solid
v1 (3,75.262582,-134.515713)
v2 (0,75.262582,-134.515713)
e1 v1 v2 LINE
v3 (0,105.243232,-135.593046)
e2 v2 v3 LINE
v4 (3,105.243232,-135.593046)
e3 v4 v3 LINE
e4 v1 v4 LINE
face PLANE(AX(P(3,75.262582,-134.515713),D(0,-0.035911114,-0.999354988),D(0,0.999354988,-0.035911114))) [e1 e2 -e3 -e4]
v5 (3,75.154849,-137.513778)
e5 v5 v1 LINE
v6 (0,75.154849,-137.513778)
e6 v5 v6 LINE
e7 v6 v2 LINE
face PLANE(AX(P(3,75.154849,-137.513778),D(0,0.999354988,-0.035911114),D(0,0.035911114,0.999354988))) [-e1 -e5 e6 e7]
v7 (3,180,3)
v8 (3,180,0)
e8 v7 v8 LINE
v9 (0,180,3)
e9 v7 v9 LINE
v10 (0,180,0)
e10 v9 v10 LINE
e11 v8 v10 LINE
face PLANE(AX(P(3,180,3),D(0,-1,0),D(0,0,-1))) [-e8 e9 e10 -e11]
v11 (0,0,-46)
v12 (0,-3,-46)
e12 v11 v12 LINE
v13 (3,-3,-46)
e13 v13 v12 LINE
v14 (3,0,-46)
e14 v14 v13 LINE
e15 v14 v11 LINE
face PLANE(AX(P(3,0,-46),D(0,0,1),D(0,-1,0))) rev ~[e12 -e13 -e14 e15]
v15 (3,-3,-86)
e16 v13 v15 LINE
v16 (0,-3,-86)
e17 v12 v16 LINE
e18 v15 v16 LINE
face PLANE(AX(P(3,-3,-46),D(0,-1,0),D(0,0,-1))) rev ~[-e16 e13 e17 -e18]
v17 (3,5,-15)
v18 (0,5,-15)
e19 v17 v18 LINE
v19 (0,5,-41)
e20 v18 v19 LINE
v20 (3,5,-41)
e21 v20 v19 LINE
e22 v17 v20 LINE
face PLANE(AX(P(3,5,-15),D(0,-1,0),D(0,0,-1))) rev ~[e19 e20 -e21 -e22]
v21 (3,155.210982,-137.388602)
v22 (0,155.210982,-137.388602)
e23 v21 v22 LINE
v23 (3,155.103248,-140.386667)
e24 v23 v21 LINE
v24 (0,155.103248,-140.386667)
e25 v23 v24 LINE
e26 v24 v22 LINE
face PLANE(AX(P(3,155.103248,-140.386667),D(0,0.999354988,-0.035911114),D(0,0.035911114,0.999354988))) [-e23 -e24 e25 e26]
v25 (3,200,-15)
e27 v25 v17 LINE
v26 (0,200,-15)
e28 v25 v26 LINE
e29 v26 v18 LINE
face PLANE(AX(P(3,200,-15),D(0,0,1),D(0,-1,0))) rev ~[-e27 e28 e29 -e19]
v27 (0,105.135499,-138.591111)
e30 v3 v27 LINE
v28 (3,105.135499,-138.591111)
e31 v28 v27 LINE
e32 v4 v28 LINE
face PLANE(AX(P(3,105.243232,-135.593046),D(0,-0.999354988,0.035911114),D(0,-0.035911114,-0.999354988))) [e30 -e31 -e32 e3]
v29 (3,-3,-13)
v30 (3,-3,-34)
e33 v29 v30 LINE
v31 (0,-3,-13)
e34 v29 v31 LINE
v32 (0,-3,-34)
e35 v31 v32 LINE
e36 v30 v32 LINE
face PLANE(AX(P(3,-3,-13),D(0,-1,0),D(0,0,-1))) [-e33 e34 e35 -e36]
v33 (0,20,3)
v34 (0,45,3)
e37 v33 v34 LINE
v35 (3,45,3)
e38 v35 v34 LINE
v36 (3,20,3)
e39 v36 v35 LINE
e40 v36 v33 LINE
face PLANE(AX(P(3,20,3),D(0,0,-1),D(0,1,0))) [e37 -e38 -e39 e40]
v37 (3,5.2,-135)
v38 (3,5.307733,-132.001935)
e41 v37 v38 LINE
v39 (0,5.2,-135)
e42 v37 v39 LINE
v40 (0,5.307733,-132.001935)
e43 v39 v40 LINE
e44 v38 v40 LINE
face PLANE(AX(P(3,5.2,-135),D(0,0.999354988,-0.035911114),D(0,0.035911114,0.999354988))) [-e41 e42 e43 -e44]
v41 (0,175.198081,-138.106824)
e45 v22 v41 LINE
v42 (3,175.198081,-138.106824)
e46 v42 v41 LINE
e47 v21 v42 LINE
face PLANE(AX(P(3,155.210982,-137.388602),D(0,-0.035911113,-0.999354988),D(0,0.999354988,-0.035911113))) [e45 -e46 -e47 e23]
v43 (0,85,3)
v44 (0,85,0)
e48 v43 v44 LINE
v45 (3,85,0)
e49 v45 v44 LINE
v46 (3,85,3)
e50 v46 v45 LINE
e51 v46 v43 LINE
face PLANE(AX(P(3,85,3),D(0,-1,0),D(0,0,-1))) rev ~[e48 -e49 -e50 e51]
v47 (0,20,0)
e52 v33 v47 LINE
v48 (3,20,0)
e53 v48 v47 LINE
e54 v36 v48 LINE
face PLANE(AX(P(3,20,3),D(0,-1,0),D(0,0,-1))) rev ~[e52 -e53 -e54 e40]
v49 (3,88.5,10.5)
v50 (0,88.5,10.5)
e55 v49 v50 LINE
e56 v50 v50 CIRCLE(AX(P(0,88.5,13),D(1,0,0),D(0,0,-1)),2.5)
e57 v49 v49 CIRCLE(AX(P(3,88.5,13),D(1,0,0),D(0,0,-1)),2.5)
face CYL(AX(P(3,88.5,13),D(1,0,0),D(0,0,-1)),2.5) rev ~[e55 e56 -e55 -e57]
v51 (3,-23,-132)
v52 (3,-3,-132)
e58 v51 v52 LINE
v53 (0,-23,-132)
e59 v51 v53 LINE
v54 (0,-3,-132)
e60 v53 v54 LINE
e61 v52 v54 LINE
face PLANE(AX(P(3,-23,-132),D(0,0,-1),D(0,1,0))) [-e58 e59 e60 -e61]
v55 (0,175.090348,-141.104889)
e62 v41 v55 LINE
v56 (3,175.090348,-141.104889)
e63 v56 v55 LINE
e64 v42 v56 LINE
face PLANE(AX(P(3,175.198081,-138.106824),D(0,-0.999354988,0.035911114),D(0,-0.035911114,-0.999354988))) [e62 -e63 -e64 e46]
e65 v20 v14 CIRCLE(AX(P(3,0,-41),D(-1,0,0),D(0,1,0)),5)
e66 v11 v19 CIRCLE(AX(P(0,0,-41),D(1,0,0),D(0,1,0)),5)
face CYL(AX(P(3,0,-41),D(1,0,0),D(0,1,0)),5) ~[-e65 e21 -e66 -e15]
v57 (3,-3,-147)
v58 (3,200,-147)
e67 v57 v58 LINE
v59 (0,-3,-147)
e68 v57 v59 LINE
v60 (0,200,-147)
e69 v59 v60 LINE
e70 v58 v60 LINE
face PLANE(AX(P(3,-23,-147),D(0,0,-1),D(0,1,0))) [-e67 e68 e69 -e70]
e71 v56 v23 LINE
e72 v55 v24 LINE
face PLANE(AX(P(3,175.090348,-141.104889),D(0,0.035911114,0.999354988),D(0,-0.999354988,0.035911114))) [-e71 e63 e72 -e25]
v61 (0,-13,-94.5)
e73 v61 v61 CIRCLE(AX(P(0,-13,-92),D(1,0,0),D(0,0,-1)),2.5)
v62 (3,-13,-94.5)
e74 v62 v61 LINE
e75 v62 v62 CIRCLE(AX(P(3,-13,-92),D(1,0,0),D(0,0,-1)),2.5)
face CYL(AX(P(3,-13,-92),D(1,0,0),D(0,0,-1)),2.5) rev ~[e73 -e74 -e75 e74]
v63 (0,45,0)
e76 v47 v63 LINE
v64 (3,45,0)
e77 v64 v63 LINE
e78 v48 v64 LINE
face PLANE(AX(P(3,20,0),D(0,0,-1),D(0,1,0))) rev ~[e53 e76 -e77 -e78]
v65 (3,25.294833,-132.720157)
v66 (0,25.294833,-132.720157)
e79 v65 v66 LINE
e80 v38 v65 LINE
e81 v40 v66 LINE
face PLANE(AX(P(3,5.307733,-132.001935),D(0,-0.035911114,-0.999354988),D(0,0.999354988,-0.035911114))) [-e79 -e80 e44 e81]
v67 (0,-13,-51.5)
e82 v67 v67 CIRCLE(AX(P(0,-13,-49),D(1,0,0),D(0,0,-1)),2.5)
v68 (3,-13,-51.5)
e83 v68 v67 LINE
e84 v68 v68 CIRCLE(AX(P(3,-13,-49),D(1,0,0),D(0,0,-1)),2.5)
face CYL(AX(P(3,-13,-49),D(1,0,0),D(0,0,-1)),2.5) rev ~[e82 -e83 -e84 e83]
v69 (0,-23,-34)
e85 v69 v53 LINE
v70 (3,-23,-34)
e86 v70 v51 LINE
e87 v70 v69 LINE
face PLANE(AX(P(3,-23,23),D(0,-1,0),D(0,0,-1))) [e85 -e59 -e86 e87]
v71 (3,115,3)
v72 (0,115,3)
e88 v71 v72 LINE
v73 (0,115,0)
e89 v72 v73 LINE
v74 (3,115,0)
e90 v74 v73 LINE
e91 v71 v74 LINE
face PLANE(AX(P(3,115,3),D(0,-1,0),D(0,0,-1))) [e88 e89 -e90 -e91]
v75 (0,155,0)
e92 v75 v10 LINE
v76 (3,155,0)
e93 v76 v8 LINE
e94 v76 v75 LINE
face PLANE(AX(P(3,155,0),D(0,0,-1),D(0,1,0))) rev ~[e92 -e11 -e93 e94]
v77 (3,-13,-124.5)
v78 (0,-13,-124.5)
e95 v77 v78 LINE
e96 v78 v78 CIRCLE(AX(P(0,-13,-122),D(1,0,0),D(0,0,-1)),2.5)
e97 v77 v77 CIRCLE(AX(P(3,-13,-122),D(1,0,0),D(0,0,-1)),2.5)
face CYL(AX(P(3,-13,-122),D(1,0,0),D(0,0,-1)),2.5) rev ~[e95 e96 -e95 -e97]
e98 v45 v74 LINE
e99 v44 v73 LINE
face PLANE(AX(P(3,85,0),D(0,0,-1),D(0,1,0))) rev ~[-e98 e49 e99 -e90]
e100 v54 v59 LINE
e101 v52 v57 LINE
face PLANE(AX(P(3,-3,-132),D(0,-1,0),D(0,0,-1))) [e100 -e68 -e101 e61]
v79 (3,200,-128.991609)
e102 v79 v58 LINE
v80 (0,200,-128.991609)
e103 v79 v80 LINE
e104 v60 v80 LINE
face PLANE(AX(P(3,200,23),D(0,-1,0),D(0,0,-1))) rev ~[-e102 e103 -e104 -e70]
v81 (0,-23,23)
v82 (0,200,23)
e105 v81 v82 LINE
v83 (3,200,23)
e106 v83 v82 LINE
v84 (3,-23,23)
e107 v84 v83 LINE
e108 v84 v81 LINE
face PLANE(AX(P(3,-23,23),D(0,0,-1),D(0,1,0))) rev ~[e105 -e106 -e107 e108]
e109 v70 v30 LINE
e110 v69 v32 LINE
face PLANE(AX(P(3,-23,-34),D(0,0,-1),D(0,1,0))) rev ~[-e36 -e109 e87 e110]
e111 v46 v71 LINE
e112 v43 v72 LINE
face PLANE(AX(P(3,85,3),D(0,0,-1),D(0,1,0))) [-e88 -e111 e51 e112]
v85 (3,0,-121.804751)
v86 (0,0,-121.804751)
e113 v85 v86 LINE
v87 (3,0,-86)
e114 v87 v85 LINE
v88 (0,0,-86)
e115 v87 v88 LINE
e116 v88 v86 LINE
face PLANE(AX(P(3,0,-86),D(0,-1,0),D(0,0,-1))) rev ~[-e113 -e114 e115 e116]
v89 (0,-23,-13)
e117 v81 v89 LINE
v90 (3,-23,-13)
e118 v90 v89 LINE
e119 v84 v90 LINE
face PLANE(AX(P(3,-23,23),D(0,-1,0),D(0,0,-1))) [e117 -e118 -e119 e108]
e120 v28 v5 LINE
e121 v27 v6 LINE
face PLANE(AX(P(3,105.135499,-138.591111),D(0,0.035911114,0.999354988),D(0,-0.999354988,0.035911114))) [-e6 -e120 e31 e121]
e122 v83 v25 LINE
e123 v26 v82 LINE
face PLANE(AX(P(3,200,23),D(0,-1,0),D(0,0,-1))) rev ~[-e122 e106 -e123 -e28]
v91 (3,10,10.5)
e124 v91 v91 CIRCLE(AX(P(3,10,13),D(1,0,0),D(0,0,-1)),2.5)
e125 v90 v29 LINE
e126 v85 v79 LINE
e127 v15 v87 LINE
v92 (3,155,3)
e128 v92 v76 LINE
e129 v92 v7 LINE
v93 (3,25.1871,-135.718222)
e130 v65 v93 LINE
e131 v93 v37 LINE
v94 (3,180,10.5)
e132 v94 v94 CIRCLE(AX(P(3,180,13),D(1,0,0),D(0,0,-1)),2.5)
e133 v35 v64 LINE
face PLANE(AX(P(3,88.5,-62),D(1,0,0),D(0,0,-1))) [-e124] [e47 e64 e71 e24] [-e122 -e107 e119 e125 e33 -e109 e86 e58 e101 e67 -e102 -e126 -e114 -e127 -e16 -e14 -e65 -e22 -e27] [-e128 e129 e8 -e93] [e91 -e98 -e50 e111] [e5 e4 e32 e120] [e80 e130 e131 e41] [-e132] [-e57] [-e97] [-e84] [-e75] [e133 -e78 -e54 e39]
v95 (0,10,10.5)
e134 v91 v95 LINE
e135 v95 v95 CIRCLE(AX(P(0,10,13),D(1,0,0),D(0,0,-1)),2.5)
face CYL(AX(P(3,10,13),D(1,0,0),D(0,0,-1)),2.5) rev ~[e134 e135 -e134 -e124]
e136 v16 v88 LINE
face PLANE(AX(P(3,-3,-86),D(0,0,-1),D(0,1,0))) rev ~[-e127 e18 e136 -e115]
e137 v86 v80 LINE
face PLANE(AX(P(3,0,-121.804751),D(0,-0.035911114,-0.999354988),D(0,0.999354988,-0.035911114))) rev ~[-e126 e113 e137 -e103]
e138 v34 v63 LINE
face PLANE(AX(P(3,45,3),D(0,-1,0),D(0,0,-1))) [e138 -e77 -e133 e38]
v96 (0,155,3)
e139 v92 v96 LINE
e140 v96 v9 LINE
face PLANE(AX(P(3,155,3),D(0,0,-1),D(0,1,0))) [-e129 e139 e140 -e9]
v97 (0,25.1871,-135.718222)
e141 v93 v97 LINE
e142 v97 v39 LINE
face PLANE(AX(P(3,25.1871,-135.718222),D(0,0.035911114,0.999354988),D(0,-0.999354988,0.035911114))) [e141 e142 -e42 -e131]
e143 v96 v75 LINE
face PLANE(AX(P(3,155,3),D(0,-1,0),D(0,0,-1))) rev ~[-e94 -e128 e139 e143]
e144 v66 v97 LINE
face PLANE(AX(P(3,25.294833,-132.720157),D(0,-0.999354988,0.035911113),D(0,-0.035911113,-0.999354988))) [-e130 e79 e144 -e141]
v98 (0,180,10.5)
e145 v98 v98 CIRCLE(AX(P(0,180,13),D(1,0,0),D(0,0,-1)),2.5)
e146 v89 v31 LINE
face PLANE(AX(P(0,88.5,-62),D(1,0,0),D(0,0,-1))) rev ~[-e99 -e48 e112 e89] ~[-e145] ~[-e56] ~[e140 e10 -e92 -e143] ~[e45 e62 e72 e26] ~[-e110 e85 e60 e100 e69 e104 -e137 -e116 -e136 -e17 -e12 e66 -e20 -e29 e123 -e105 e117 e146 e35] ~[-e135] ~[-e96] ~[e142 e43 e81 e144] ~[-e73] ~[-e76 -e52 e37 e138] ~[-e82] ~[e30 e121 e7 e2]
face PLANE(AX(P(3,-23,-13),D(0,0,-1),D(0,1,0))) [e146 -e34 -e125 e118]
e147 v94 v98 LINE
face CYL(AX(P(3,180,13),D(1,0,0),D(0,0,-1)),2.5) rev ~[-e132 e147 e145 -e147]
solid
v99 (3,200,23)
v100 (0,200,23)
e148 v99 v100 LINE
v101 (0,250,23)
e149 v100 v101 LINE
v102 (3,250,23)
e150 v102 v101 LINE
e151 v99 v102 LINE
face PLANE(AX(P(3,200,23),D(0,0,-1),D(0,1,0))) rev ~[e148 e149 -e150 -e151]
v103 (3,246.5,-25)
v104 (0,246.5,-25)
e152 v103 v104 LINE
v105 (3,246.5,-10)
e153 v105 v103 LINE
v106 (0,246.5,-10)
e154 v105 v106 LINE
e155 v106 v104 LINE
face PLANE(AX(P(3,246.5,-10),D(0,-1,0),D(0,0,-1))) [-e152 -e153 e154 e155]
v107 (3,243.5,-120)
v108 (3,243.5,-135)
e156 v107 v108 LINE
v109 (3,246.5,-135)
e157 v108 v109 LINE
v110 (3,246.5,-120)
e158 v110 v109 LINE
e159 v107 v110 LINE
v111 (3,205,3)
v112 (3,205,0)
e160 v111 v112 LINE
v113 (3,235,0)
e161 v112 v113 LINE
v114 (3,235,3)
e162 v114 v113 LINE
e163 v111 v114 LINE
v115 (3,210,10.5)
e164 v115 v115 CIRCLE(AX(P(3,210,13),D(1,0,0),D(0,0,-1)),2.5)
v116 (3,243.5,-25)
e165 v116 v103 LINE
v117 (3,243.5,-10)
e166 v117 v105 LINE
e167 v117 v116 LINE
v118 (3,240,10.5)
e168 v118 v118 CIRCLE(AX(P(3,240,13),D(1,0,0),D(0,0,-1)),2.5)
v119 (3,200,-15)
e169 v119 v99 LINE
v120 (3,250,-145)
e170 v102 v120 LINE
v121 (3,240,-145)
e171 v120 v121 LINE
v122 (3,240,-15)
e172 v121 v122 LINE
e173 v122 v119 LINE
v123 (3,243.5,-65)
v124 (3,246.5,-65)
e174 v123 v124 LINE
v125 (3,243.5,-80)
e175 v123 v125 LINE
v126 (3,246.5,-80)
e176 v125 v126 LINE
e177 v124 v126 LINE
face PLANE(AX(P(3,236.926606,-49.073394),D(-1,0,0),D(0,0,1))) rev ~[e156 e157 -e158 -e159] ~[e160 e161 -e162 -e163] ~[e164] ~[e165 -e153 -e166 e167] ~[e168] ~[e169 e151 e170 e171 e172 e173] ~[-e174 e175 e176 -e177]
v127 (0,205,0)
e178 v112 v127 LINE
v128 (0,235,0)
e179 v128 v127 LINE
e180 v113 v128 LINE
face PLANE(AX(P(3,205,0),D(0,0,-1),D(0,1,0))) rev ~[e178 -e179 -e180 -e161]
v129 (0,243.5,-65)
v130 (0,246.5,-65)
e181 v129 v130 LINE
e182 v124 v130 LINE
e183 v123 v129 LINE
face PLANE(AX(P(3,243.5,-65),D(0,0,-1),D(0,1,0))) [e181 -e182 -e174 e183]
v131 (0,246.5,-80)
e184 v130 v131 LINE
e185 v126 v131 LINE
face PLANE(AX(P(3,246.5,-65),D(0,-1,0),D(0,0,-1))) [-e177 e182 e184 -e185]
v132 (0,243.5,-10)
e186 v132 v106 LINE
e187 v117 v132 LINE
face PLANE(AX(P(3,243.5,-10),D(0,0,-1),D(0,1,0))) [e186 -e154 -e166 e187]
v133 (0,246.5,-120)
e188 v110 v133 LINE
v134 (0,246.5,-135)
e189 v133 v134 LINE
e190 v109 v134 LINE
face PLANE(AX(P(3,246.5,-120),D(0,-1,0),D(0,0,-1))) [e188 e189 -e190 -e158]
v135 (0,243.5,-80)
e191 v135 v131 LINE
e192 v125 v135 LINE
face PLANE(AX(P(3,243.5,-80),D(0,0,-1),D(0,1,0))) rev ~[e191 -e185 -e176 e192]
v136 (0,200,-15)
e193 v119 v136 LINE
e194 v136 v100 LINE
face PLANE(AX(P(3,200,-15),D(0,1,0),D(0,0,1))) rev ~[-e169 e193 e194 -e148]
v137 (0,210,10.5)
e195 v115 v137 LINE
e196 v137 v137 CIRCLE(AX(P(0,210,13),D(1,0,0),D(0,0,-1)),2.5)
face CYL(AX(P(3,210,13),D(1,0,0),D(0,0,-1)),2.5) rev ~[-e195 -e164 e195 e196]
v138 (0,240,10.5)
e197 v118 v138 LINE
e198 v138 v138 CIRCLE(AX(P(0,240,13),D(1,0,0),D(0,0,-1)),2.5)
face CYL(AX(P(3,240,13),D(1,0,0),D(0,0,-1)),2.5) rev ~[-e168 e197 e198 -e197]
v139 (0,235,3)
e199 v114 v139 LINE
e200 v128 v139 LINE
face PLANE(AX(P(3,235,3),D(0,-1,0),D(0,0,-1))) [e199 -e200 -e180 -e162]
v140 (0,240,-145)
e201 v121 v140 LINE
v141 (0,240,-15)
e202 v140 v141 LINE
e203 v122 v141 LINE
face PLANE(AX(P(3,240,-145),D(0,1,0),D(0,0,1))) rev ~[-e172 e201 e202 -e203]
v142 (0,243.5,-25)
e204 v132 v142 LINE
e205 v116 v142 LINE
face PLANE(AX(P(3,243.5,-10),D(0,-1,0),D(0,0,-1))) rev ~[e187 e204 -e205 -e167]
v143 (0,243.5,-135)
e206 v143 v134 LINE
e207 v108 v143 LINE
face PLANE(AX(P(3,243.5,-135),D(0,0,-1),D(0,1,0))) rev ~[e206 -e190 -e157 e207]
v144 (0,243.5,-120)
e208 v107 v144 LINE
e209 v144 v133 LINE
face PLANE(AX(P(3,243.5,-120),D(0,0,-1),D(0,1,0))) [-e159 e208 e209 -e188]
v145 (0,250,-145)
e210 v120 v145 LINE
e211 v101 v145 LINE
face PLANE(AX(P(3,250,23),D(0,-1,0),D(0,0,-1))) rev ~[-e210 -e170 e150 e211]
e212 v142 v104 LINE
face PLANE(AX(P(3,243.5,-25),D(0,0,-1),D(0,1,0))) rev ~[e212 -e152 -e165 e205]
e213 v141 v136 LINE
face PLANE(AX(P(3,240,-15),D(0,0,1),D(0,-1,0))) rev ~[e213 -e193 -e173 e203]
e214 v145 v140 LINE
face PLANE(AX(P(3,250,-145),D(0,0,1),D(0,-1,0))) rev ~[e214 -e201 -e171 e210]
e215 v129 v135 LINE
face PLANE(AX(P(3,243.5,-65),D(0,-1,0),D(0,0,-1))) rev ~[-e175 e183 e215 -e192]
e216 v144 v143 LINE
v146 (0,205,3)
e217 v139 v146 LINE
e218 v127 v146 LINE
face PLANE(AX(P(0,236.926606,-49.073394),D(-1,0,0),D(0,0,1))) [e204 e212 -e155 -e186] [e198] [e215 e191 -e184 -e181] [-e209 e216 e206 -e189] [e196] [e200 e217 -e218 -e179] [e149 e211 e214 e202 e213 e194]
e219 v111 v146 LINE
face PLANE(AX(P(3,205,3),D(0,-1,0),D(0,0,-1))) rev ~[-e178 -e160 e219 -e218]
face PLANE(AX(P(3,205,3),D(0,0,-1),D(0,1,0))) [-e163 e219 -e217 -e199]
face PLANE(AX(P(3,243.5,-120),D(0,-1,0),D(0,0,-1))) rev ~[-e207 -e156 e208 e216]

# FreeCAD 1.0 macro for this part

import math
import FreeCAD as App
import Part
import Sketcher
from FreeCAD import Vector
Q = App.Units.Quantity

doc = App.newDocument("Part")
body = doc.addObject("PartDesign::Body", "Body")

# Sketch on YZ plane
sketch1 = body.newObject("Sketcher::SketchObject", "Sketch")
sketch1.AttachmentSupport = (doc.getObject("YZ_Plane"), [""])
sketch1.MapMode = "FlatFace"
sketch1.addGeometry(Part.LineSegment(Vector(200, 0, 0), Vector(0, 0, 0)), False)
sketch1.addGeometry(Part.LineSegment(Vector(0, 0, 0), Vector(0, -132, 0)), False)
sketch1.addGeometry(Part.LineSegment(Vector(0, -132, 0), Vector(200, -132, 0)), False)
sketch1.addGeometry(Part.LineSegment(Vector(200, -132, 0), Vector(200, 0, 0)), False)
sketch1.addConstraint(Sketcher.Constraint("Coincident", 0, 2, 1, 1))
sketch1.addConstraint(Sketcher.Constraint("Coincident", 1, 2, 2, 1))
sketch1.addConstraint(Sketcher.Constraint("Coincident", 2, 2, 3, 1))
sketch1.addConstraint(Sketcher.Constraint("Coincident", 3, 2, 0, 1))
sketch1.addConstraint(Sketcher.Constraint("Horizontal", 0))
sketch1.addConstraint(Sketcher.Constraint("Vertical", 1))
sketch1.addConstraint(Sketcher.Constraint("Horizontal", 2))
sketch1.addConstraint(Sketcher.Constraint("Vertical", 3))
sketch1.addConstraint(Sketcher.Constraint("Coincident", 0, 2, -1, 1))
sketch1.addConstraint(Sketcher.Constraint("DistanceX", 0, 2, 0, 1, Q("200 mm")))
sketch1.addConstraint(Sketcher.Constraint("DistanceY", 1, 2, 1, 1, Q("132 mm")))
pad1 = body.newObject("PartDesign::Pad", "Pad")
pad1.Profile = sketch1
pad1.Length = 3

# Sketch on YZ plane
sketch2 = body.newObject("Sketcher::SketchObject", "Sketch001")
sketch2.AttachmentSupport = (doc.getObject("YZ_Plane"), [""])
sketch2.MapMode = "FlatFace"
sketch2.AttachmentOffset = App.Placement(Vector(0, 0, 3), App.Rotation())
sketch2.addGeometry(Part.LineSegment(Vector(200, 23, 0), Vector(-23, 23, 0)), False)
sketch2.addGeometry(Part.LineSegment(Vector(-23, 23, 0), Vector(-23, -147, 0)), False)
sketch2.addGeometry(Part.LineSegment(Vector(-23, -147, 0), Vector(200, -147, 0)), False)
sketch2.addGeometry(Part.LineSegment(Vector(200, -147, 0), Vector(200, 23, 0)), False)
sketch2.addConstraint(Sketcher.Constraint("Coincident", 0, 2, 1, 1))
sketch2.addConstraint(Sketcher.Constraint("Coincident", 1, 2, 2, 1))
sketch2.addConstraint(Sketcher.Constraint("Coincident", 2, 2, 3, 1))
sketch2.addConstraint(Sketcher.Constraint("Coincident", 3, 2, 0, 1))
sketch2.addConstraint(Sketcher.Constraint("Horizontal", 0))
sketch2.addConstraint(Sketcher.Constraint("Vertical", 1))
sketch2.addConstraint(Sketcher.Constraint("Horizontal", 2))
sketch2.addConstraint(Sketcher.Constraint("Vertical", 3))
sketch2.addConstraint(Sketcher.Constraint("DistanceX", 0, 2, 0, 1, Q("223 mm")))
sketch2.addConstraint(Sketcher.Constraint("DistanceY", 1, 2, 1, 1, Q("170 mm")))
sketch2.addConstraint(Sketcher.Constraint("DistanceX", 0, 2, -1, 1, Q("23 mm")))
sketch2.addConstraint(Sketcher.Constraint("DistanceY", -1, 1, 0, 2, Q("23 mm")))
pad2 = body.newObject("PartDesign::Pad", "Pad001")
pad2.Profile = sketch2
pad2.Type = "UpToLast"
pad2.Reversed = True

# Sketch on YZ plane
sketch3 = body.newObject("Sketcher::SketchObject", "Sketch002")
sketch3.AttachmentSupport = (doc.getObject("YZ_Plane"), [""])
sketch3.MapMode = "FlatFace"
sketch3.AttachmentOffset = App.Placement(Vector(0, 0, 3), App.Rotation())
sketch3.addGeometry(Part.LineSegment(Vector(5.3, -132, 0), Vector(5.2, -135, 0)), False)
sketch3.addGeometry(Part.LineSegment(Vector(5.2, -135, 0), Vector(25.2, -135.7, 0)), False)
sketch3.addGeometry(Part.LineSegment(Vector(25.2, -135.7, 0), Vector(25.3, -132.7, 0)), False)
sketch3.addGeometry(Part.LineSegment(Vector(25.3, -132.7, 0), Vector(5.3, -132, 0)), False)
sketch3.addGeometry(Part.LineSegment(Vector(175.1, -141.1, 0), Vector(175.2, -138.1, 0)), False)
sketch3.addGeometry(Part.LineSegment(Vector(175.2, -138.1, 0), Vector(155.2, -137.4, 0)), False)
sketch3.addGeometry(Part.LineSegment(Vector(155.2, -137.4, 0), Vector(155.1, -140.4, 0)), False)
sketch3.addGeometry(Part.LineSegment(Vector(155.1, -140.4, 0), Vector(175.1, -141.1, 0)), False)
sketch3.addGeometry(Part.LineSegment(Vector(105.1, -138.6, 0), Vector(105.2, -135.6, 0)), False)
sketch3.addGeometry(Part.LineSegment(Vector(105.2, -135.6, 0), Vector(75.3, -134.5, 0)), False)
sketch3.addGeometry(Part.LineSegment(Vector(75.3, -134.5, 0), Vector(75.2, -137.5, 0)), False)
sketch3.addGeometry(Part.LineSegment(Vector(75.2, -137.5, 0), Vector(105.1, -138.6, 0)), False)
sketch3.addConstraint(Sketcher.Constraint("Coincident", 0, 2, 1, 1))
sketch3.addConstraint(Sketcher.Constraint("Coincident", 1, 2, 2, 1))
sketch3.addConstraint(Sketcher.Constraint("Coincident", 2, 2, 3, 1))
sketch3.addConstraint(Sketcher.Constraint("Coincident", 3, 2, 0, 1))
sketch3.addConstraint(Sketcher.Constraint("Coincident", 4, 2, 5, 1))
sketch3.addConstraint(Sketcher.Constraint("Coincident", 5, 2, 6, 1))
sketch3.addConstraint(Sketcher.Constraint("Coincident", 6, 2, 7, 1))
sketch3.addConstraint(Sketcher.Constraint("Coincident", 7, 2, 4, 1))
sketch3.addConstraint(Sketcher.Constraint("Coincident", 8, 2, 9, 1))
sketch3.addConstraint(Sketcher.Constraint("Coincident", 9, 2, 10, 1))
sketch3.addConstraint(Sketcher.Constraint("Coincident", 10, 2, 11, 1))
sketch3.addConstraint(Sketcher.Constraint("Coincident", 11, 2, 8, 1))
sketch3.addConstraint(Sketcher.Constraint("Perpendicular", 0, 1))
sketch3.addConstraint(Sketcher.Constraint("Perpendicular", 1, 2))
sketch3.addConstraint(Sketcher.Constraint("Perpendicular", 2, 3))
sketch3.addConstraint(Sketcher.Constraint("Perpendicular", 3, 4))
sketch3.addConstraint(Sketcher.Constraint("Perpendicular", 4, 5))
sketch3.addConstraint(Sketcher.Constraint("Perpendicular", 5, 6))
sketch3.addConstraint(Sketcher.Constraint("Perpendicular", 6, 7))
sketch3.addConstraint(Sketcher.Constraint("Perpendicular", 7, 8))
sketch3.addConstraint(Sketcher.Constraint("Perpendicular", 8, 9))
sketch3.addConstraint(Sketcher.Constraint("Perpendicular", 9, 10))
sketch3.addConstraint(Sketcher.Constraint("Perpendicular", 10, 11))
sketch3.addConstraint(Sketcher.Constraint("Equal", 2, 4))
sketch3.addConstraint(Sketcher.Constraint("Equal", 3, 5))
sketch3.addConstraint(Sketcher.Constraint("Equal", 6, 8))
sketch3.addConstraint(Sketcher.Constraint("Distance", 0, Q("3 mm")))
sketch3.addConstraint(Sketcher.Constraint("Distance", 1, Q("20 mm")))
sketch3.addConstraint(Sketcher.Constraint("Distance", 9, Q("30 mm")))
sketch3.addConstraint(Sketcher.Constraint("DistanceY", 0, 2, -1, 1, Q("135 mm")))
sketch3.addConstraint(Sketcher.Constraint("DistanceX", -1, 1, 0, 2, Q("5.2 mm")))
sketch3.addConstraint(Sketcher.Constraint("DistanceX", -1, 1, 1, 2, Q("25.1871 mm")))
sketch3.addConstraint(Sketcher.Constraint("DistanceX", -1, 1, 11, 2, Q("105.135499 mm")))
sketch3.addConstraint(Sketcher.Constraint("DistanceX", -1, 1, 4, 2, Q("175.198081 mm")))
sketch3.addConstraint(Sketcher.Constraint("DistanceY", 7, 2, -1, 1, Q("141.104889 mm")))
sketch3.addConstraint(Sketcher.Constraint("DistanceY", 11, 2, -1, 1, Q("138.591111 mm")))
pocket1 = body.newObject("PartDesign::Pocket", "Pocket")
pocket1.Profile = sketch3
pocket1.Type = "ThroughAll"

# Sketch on YZ plane
sketch4 = body.newObject("Sketcher::SketchObject", "Sketch003")
sketch4.AttachmentSupport = (doc.getObject("YZ_Plane"), [""])
sketch4.MapMode = "FlatFace"
sketch4.AttachmentOffset = App.Placement(Vector(0, 0, 3), App.Rotation())
sketch4.addGeometry(Part.Circle(Vector(-13, -122, 0), Vector(0, 0, 1), 2.5), False)
sketch4.addGeometry(Part.Circle(Vector(-13, -92, 0), Vector(0, 0, 1), 2.5), False)
sketch4.addGeometry(Part.Circle(Vector(10, 13, 0), Vector(0, 0, 1), 2.5), False)
sketch4.addGeometry(Part.Circle(Vector(-13, -49, 0), Vector(0, 0, 1), 2.5), False)
sketch4.addConstraint(Sketcher.Constraint("Equal", 0, 1))
sketch4.addConstraint(Sketcher.Constraint("Equal", 1, 2))
sketch4.addConstraint(Sketcher.Constraint("Equal", 2, 3))
sketch4.addConstraint(Sketcher.Constraint("Vertical", 0, 3, 1, 3))
sketch4.addConstraint(Sketcher.Constraint("Vertical", 1, 3, 3, 3))
sketch4.addConstraint(Sketcher.Constraint("Diameter", 0, Q("5 mm")))
sketch4.addConstraint(Sketcher.Constraint("DistanceX", 0, 3, -1, 1, Q("13 mm")))
sketch4.addConstraint(Sketcher.Constraint("DistanceY", 0, 3, -1, 1, Q("122 mm")))
sketch4.addConstraint(Sketcher.Constraint("DistanceY", 1, 3, -1, 1, Q("92 mm")))
sketch4.addConstraint(Sketcher.Constraint("DistanceX", -1, 1, 2, 3, Q("10 mm")))
sketch4.addConstraint(Sketcher.Constraint("DistanceY", -1, 1, 2, 3, Q("13 mm")))
sketch4.addConstraint(Sketcher.Constraint("DistanceY", 3, 3, -1, 1, Q("49 mm")))
pocket2 = body.newObject("PartDesign::Pocket", "Pocket001")
pocket2.Profile = sketch4
pocket2.Type = "ThroughAll"

# Sketch on YZ plane
sketch5 = body.newObject("Sketcher::SketchObject", "Sketch004")
sketch5.AttachmentSupport = (doc.getObject("YZ_Plane"), [""])
sketch5.MapMode = "FlatFace"
sketch5.AttachmentOffset = App.Placement(Vector(0, 0, 3), App.Rotation())
sketch5.addGeometry(Part.LineSegment(Vector(-3, -13, 0), Vector(-23, -13, 0)), False)
sketch5.addGeometry(Part.LineSegment(Vector(-23, -13, 0), Vector(-23, -34, 0)), False)
sketch5.addGeometry(Part.LineSegment(Vector(-23, -34, 0), Vector(-3, -34, 0)), False)
sketch5.addGeometry(Part.LineSegment(Vector(-3, -34, 0), Vector(-3, -13, 0)), False)
sketch5.addConstraint(Sketcher.Constraint("Coincident", 0, 2, 1, 1))
sketch5.addConstraint(Sketcher.Constraint("Coincident", 1, 2, 2, 1))
sketch5.addConstraint(Sketcher.Constraint("Coincident", 2, 2, 3, 1))
sketch5.addConstraint(Sketcher.Constraint("Coincident", 3, 2, 0, 1))
sketch5.addConstraint(Sketcher.Constraint("Horizontal", 0))
sketch5.addConstraint(Sketcher.Constraint("Vertical", 1))
sketch5.addConstraint(Sketcher.Constraint("Horizontal", 2))
sketch5.addConstraint(Sketcher.Constraint("Vertical", 3))
sketch5.addConstraint(Sketcher.Constraint("DistanceX", 0, 2, 0, 1, Q("20 mm")))
sketch5.addConstraint(Sketcher.Constraint("DistanceY", 1, 2, 1, 1, Q("21 mm")))
sketch5.addConstraint(Sketcher.Constraint("DistanceX", 0, 2, -1, 1, Q("23 mm")))
sketch5.addConstraint(Sketcher.Constraint("DistanceY", 0, 2, -1, 1, Q("13 mm")))
pocket3 = body.newObject("PartDesign::Pocket", "Pocket002")
pocket3.Profile = sketch5
pocket3.Type = "ThroughAll"

# Sketch on YZ plane
sketch6 = body.newObject("Sketcher::SketchObject", "Sketch005")
sketch6.AttachmentSupport = (doc.getObject("YZ_Plane"), [""])
sketch6.MapMode = "FlatFace"
sketch6.AttachmentOffset = App.Placement(Vector(0, 0, 3), App.Rotation())
sketch6.addGeometry(Part.LineSegment(Vector(-3, -132, 0), Vector(-23, -132, 0)), False)
sketch6.addGeometry(Part.LineSegment(Vector(-23, -132, 0), Vector(-23, -147, 0)), False)
sketch6.addGeometry(Part.LineSegment(Vector(-23, -147, 0), Vector(-3, -147, 0)), False)
sketch6.addGeometry(Part.LineSegment(Vector(-3, -147, 0), Vector(-3, -132, 0)), False)
sketch6.addConstraint(Sketcher.Constraint("Coincident", 0, 2, 1, 1))
sketch6.addConstraint(Sketcher.Constraint("Coincident", 1, 2, 2, 1))
sketch6.addConstraint(Sketcher.Constraint("Coincident", 2, 2, 3, 1))
sketch6.addConstraint(Sketcher.Constraint("Coincident", 3, 2, 0, 1))
sketch6.addConstraint(Sketcher.Constraint("Horizontal", 0))
sketch6.addConstraint(Sketcher.Constraint("Vertical", 1))
sketch6.addConstraint(Sketcher.Constraint("Horizontal", 2))
sketch6.addConstraint(Sketcher.Constraint("Vertical", 3))
sketch6.addConstraint(Sketcher.Constraint("DistanceX", 0, 2, 0, 1, Q("20 mm")))
sketch6.addConstraint(Sketcher.Constraint("DistanceY", 1, 2, 1, 1, Q("15 mm")))
sketch6.addConstraint(Sketcher.Constraint("DistanceX", 0, 2, -1, 1, Q("23 mm")))
sketch6.addConstraint(Sketcher.Constraint("DistanceY", 0, 2, -1, 1, Q("132 mm")))
pocket4 = body.newObject("PartDesign::Pocket", "Pocket003")
pocket4.Profile = sketch6
pocket4.Type = "ThroughAll"

# Sketch on YZ plane
sketch7 = body.newObject("Sketcher::SketchObject", "Sketch006")
sketch7.AttachmentSupport = (doc.getObject("YZ_Plane"), [""])
sketch7.MapMode = "FlatFace"
sketch7.AttachmentOffset = App.Placement(Vector(0, 0, 3), App.Rotation())
sketch7.addGeometry(Part.LineSegment(Vector(200, -129, 0), Vector(200, -15, 0)), False)
sketch7.addGeometry(Part.LineSegment(Vector(200, -15, 0), Vector(5, -15, 0)), False)
sketch7.addGeometry(Part.LineSegment(Vector(5, -15, 0), Vector(5, -41, 0)), False)
sketch7.addGeometry(Part.ArcOfCircle(Part.Circle(Vector(0, -41, 0), Vector(0, 0, 1), 5), math.radians(-90), math.radians(0)), False)
sketch7.addGeometry(Part.LineSegment(Vector(0, -46, 0), Vector(-3, -46, 0)), False)
sketch7.addGeometry(Part.LineSegment(Vector(-3, -46, 0), Vector(-3, -86, 0)), False)
sketch7.addGeometry(Part.LineSegment(Vector(-3, -86, 0), Vector(0, -86, 0)), False)
sketch7.addGeometry(Part.LineSegment(Vector(0, -86, 0), Vector(0, -121.8, 0)), False)
sketch7.addGeometry(Part.LineSegment(Vector(0, -121.8, 0), Vector(200, -129, 0)), False)
sketch7.addConstraint(Sketcher.Constraint("Coincident", 0, 2, 1, 1))
sketch7.addConstraint(Sketcher.Constraint("Coincident", 1, 2, 2, 1))
sketch7.addConstraint(Sketcher.Constraint("Tangent", 2, 2, 3, 2))
sketch7.addConstraint(Sketcher.Constraint("Tangent", 3, 1, 4, 1))
sketch7.addConstraint(Sketcher.Constraint("Coincident", 4, 2, 5, 1))
sketch7.addConstraint(Sketcher.Constraint("Coincident", 5, 2, 6, 1))
sketch7.addConstraint(Sketcher.Constraint("Coincident", 6, 2, 7, 1))
sketch7.addConstraint(Sketcher.Constraint("Coincident", 7, 2, 8, 1))
sketch7.addConstraint(Sketcher.Constraint("Coincident", 8, 2, 0, 1))
sketch7.addConstraint(Sketcher.Constraint("Vertical", 0))
sketch7.addConstraint(Sketcher.Constraint("Horizontal", 1))
sketch7.addConstraint(Sketcher.Constraint("Vertical", 2))
sketch7.addConstraint(Sketcher.Constraint("Horizontal", 4))
sketch7.addConstraint(Sketcher.Constraint("Vertical", 5))
sketch7.addConstraint(Sketcher.Constraint("Horizontal", 6))
sketch7.addConstraint(Sketcher.Constraint("Vertical", 7))
sketch7.addConstraint(Sketcher.Constraint("PointOnObject", 3, 3, -2))
sketch7.addConstraint(Sketcher.Constraint("PointOnObject", 6, 2, -2))
sketch7.addConstraint(Sketcher.Constraint("Radius", 3, Q("5 mm")))
sketch7.addConstraint(Sketcher.Constraint("DistanceX", 1, 2, 1, 1, Q("195 mm")))
sketch7.addConstraint(Sketcher.Constraint("DistanceX", 4, 2, 4, 1, Q("3 mm")))
sketch7.addConstraint(Sketcher.Constraint("DistanceY", 2, 2, 2, 1, Q("26 mm")))
sketch7.addConstraint(Sketcher.Constraint("DistanceY", 5, 2, 5, 1, Q("40 mm")))
sketch7.addConstraint(Sketcher.Constraint("DistanceY", 3, 3, -1, 1, Q("41 mm")))
sketch7.addConstraint(Sketcher.Constraint("DistanceY", 0, 1, 0, 2, Q("113.991609 mm")))
sketch7.addConstraint(Sketcher.Constraint("DistanceY", 7, 2, 7, 1, Q("35.804751 mm")))
pocket5 = body.newObject("PartDesign::Pocket", "Pocket004")
pocket5.Profile = sketch7
pocket5.Type = "ThroughAll"

# Sketch on YZ plane
sketch8 = body.newObject("Sketcher::SketchObject", "Sketch007")
sketch8.AttachmentSupport = (doc.getObject("YZ_Plane"), [""])
sketch8.MapMode = "FlatFace"
sketch8.AttachmentOffset = App.Placement(Vector(0, 0, 3), App.Rotation())
sketch8.addGeometry(Part.LineSegment(Vector(180, 3, 0), Vector(155, 3, 0)), False)
sketch8.addGeometry(Part.LineSegment(Vector(155, 3, 0), Vector(155, 0, 0)), False)
sketch8.addGeometry(Part.LineSegment(Vector(155, 0, 0), Vector(180, 0, 0)), False)
sketch8.addGeometry(Part.LineSegment(Vector(180, 0, 0), Vector(180, 3, 0)), False)
sketch8.addGeometry(Part.LineSegment(Vector(115, 3, 0), Vector(85, 3, 0)), False)
sketch8.addGeometry(Part.LineSegment(Vector(85, 3, 0), Vector(85, 0, 0)), False)
sketch8.addGeometry(Part.LineSegment(Vector(85, 0, 0), Vector(115, 0, 0)), False)
sketch8.addGeometry(Part.LineSegment(Vector(115, 0, 0), Vector(115, 3, 0)), False)
sketch8.addGeometry(Part.LineSegment(Vector(45, 3, 0), Vector(20, 3, 0)), False)
sketch8.addGeometry(Part.LineSegment(Vector(20, 3, 0), Vector(20, 0, 0)), False)
sketch8.addGeometry(Part.LineSegment(Vector(20, 0, 0), Vector(45, 0, 0)), False)
sketch8.addGeometry(Part.LineSegment(Vector(45, 0, 0), Vector(45, 3, 0)), False)
sketch8.addConstraint(Sketcher.Constraint("Coincident", 0, 2, 1, 1))
sketch8.addConstraint(Sketcher.Constraint("Coincident", 1, 2, 2, 1))
sketch8.addConstraint(Sketcher.Constraint("Coincident", 2, 2, 3, 1))
sketch8.addConstraint(Sketcher.Constraint("Coincident", 3, 2, 0, 1))
sketch8.addConstraint(Sketcher.Constraint("Coincident", 4, 2, 5, 1))
sketch8.addConstraint(Sketcher.Constraint("Coincident", 5, 2, 6, 1))
sketch8.addConstraint(Sketcher.Constraint("Coincident", 6, 2, 7, 1))
sketch8.addConstraint(Sketcher.Constraint("Coincident", 7, 2, 4, 1))
sketch8.addConstraint(Sketcher.Constraint("Coincident", 8, 2, 9, 1))
sketch8.addConstraint(Sketcher.Constraint("Coincident", 9, 2, 10, 1))
sketch8.addConstraint(Sketcher.Constraint("Coincident", 10, 2, 11, 1))
sketch8.addConstraint(Sketcher.Constraint("Coincident", 11, 2, 8, 1))
sketch8.addConstraint(Sketcher.Constraint("Horizontal", 0))
sketch8.addConstraint(Sketcher.Constraint("Vertical", 1))
sketch8.addConstraint(Sketcher.Constraint("Horizontal", 2))
sketch8.addConstraint(Sketcher.Constraint("Vertical", 3))
sketch8.addConstraint(Sketcher.Constraint("Horizontal", 4))
sketch8.addConstraint(Sketcher.Constraint("Vertical", 5))
sketch8.addConstraint(Sketcher.Constraint("Horizontal", 6))
sketch8.addConstraint(Sketcher.Constraint("Vertical", 7))
sketch8.addConstraint(Sketcher.Constraint("Horizontal", 8))
sketch8.addConstraint(Sketcher.Constraint("Vertical", 9))
sketch8.addConstraint(Sketcher.Constraint("Horizontal", 10))
sketch8.addConstraint(Sketcher.Constraint("Vertical", 11))
sketch8.addConstraint(Sketcher.Constraint("PointOnObject", 1, 2, -1))
sketch8.addConstraint(Sketcher.Constraint("PointOnObject", 5, 2, -1))
sketch8.addConstraint(Sketcher.Constraint("PointOnObject", 9, 2, -1))
sketch8.addConstraint(Sketcher.Constraint("Horizontal", 3, 2, 4, 2))
sketch8.addConstraint(Sketcher.Constraint("Horizontal", 7, 2, 8, 2))
sketch8.addConstraint(Sketcher.Constraint("Equal", 2, 8))
sketch8.addConstraint(Sketcher.Constraint("DistanceX", 0, 2, 0, 1, Q("25 mm")))
sketch8.addConstraint(Sketcher.Constraint("DistanceX", 4, 2, 4, 1, Q("30 mm")))
sketch8.addConstraint(Sketcher.Constraint("DistanceY", 1, 2, 1, 1, Q("3 mm")))
sketch8.addConstraint(Sketcher.Constraint("DistanceX", -1, 1, 0, 2, Q("155 mm")))
sketch8.addConstraint(Sketcher.Constraint("DistanceX", -1, 1, 4, 2, Q("85 mm")))
sketch8.addConstraint(Sketcher.Constraint("DistanceX", -1, 1, 8, 2, Q("20 mm")))
pocket6 = body.newObject("PartDesign::Pocket", "Pocket005")
pocket6.Profile = sketch8
pocket6.Type = "ThroughAll"

# Sketch on YZ plane
sketch9 = body.newObject("Sketcher::SketchObject", "Sketch008")
sketch9.AttachmentSupport = (doc.getObject("YZ_Plane"), [""])
sketch9.MapMode = "FlatFace"
sketch9.AttachmentOffset = App.Placement(Vector(0, 0, 3), App.Rotation())
sketch9.addGeometry(Part.Circle(Vector(180, 13, 0), Vector(0, 0, 1), 2.5), False)
sketch9.addGeometry(Part.Circle(Vector(88.5, 13, 0), Vector(0, 0, 1), 2.5), False)
sketch9.addConstraint(Sketcher.Constraint("Equal", 0, 1))
sketch9.addConstraint(Sketcher.Constraint("Horizontal", 0, 3, 1, 3))
sketch9.addConstraint(Sketcher.Constraint("Diameter", 0, Q("5 mm")))
sketch9.addConstraint(Sketcher.Constraint("DistanceX", -1, 1, 0, 3, Q("180 mm")))
sketch9.addConstraint(Sketcher.Constraint("DistanceY", -1, 1, 0, 3, Q("13 mm")))
sketch9.addConstraint(Sketcher.Constraint("DistanceX", -1, 1, 1, 3, Q("88.5 mm")))
pocket7 = body.newObject("PartDesign::Pocket", "Pocket006")
pocket7.Profile = sketch9
pocket7.Type = "ThroughAll"
body2 = doc.addObject("PartDesign::Body", "Body001")

# Sketch on YZ plane
sketch10 = body2.newObject("Sketcher::SketchObject", "Sketch009")
sketch10.AttachmentSupport = (doc.getObject("YZ_Plane001"), [""])
sketch10.MapMode = "FlatFace"
sketch10.AttachmentOffset = App.Placement(Vector(0, 0, 3), App.Rotation())
sketch10.addGeometry(Part.LineSegment(Vector(200, -15, 0), Vector(240, -15, 0)), False)
sketch10.addGeometry(Part.LineSegment(Vector(240, -15, 0), Vector(240, -145, 0)), False)
sketch10.addGeometry(Part.LineSegment(Vector(240, -145, 0), Vector(250, -145, 0)), False)
sketch10.addGeometry(Part.LineSegment(Vector(250, -145, 0), Vector(250, 23, 0)), False)
sketch10.addGeometry(Part.LineSegment(Vector(250, 23, 0), Vector(200, 23, 0)), False)
sketch10.addGeometry(Part.LineSegment(Vector(200, 23, 0), Vector(200, -15, 0)), False)
sketch10.addConstraint(Sketcher.Constraint("Coincident", 0, 2, 1, 1))
sketch10.addConstraint(Sketcher.Constraint("Coincident", 1, 2, 2, 1))
sketch10.addConstraint(Sketcher.Constraint("Coincident", 2, 2, 3, 1))
sketch10.addConstraint(Sketcher.Constraint("Coincident", 3, 2, 4, 1))
sketch10.addConstraint(Sketcher.Constraint("Coincident", 4, 2, 5, 1))
sketch10.addConstraint(Sketcher.Constraint("Coincident", 5, 2, 0, 1))
sketch10.addConstraint(Sketcher.Constraint("Horizontal", 0))
sketch10.addConstraint(Sketcher.Constraint("Vertical", 1))
sketch10.addConstraint(Sketcher.Constraint("Horizontal", 2))
sketch10.addConstraint(Sketcher.Constraint("Vertical", 3))
sketch10.addConstraint(Sketcher.Constraint("Horizontal", 4))
sketch10.addConstraint(Sketcher.Constraint("Vertical", 5))
sketch10.addConstraint(Sketcher.Constraint("DistanceX", 0, 1, 0, 2, Q("40 mm")))
sketch10.addConstraint(Sketcher.Constraint("DistanceX", 2, 1, 2, 2, Q("10 mm")))
sketch10.addConstraint(Sketcher.Constraint("DistanceY", 1, 2, 1, 1, Q("130 mm")))
sketch10.addConstraint(Sketcher.Constraint("DistanceY", 3, 1, 3, 2, Q("168 mm")))
sketch10.addConstraint(Sketcher.Constraint("DistanceX", -1, 1, 0, 2, Q("240 mm")))
sketch10.addConstraint(Sketcher.Constraint("DistanceY", 0, 2, -1, 1, Q("15 mm")))
pad3 = body2.newObject("PartDesign::Pad", "Pad002")
pad3.Profile = sketch10
pad3.Length = 3
pad3.Reversed = True

# Sketch on YZ plane
sketch11 = body2.newObject("Sketcher::SketchObject", "Sketch010")
sketch11.AttachmentSupport = (doc.getObject("YZ_Plane001"), [""])
sketch11.MapMode = "FlatFace"
sketch11.AttachmentOffset = App.Placement(Vector(0, 0, 3), App.Rotation())
sketch11.addGeometry(Part.LineSegment(Vector(246.5, -120, 0), Vector(243.5, -120, 0)), False)
sketch11.addGeometry(Part.LineSegment(Vector(243.5, -120, 0), Vector(243.5, -135, 0)), False)
sketch11.addGeometry(Part.LineSegment(Vector(243.5, -135, 0), Vector(246.5, -135, 0)), False)
sketch11.addGeometry(Part.LineSegment(Vector(246.5, -135, 0), Vector(246.5, -120, 0)), False)
sketch11.addGeometry(Part.LineSegment(Vector(246.5, -65, 0), Vector(243.5, -65, 0)), False)
sketch11.addGeometry(Part.LineSegment(Vector(243.5, -65, 0), Vector(243.5, -80, 0)), False)
sketch11.addGeometry(Part.LineSegment(Vector(243.5, -80, 0), Vector(246.5, -80, 0)), False)
sketch11.addGeometry(Part.LineSegment(Vector(246.5, -80, 0), Vector(246.5, -65, 0)), False)
sketch11.addGeometry(Part.LineSegment(Vector(246.5, -10, 0), Vector(243.5, -10, 0)), False)
sketch11.addGeometry(Part.LineSegment(Vector(243.5, -10, 0), Vector(243.5, -25, 0)), False)
sketch11.addGeometry(Part.LineSegment(Vector(243.5, -25, 0), Vector(246.5, -25, 0)), False)
sketch11.addGeometry(Part.LineSegment(Vector(246.5, -25, 0), Vector(246.5, -10, 0)), False)
sketch11.addConstraint(Sketcher.Constraint("Coincident", 0, 2, 1, 1))
sketch11.addConstraint(Sketcher.Constraint("Coincident", 1, 2, 2, 1))
sketch11.addConstraint(Sketcher.Constraint("Coincident", 2, 2, 3, 1))
sketch11.addConstraint(Sketcher.Constraint("Coincident", 3, 2, 0, 1))
sketch11.addConstraint(Sketcher.Constraint("Coincident", 4, 2, 5, 1))
sketch11.addConstraint(Sketcher.Constraint("Coincident", 5, 2, 6, 1))
sketch11.addConstraint(Sketcher.Constraint("Coincident", 6, 2, 7, 1))
sketch11.addConstraint(Sketcher.Constraint("Coincident", 7, 2, 4, 1))
sketch11.addConstraint(Sketcher.Constraint("Coincident", 8, 2, 9, 1))
sketch11.addConstraint(Sketcher.Constraint("Coincident", 9, 2, 10, 1))
sketch11.addConstraint(Sketcher.Constraint("Coincident", 10, 2, 11, 1))
sketch11.addConstraint(Sketcher.Constraint("Coincident", 11, 2, 8, 1))
sketch11.addConstraint(Sketcher.Constraint("Horizontal", 0))
sketch11.addConstraint(Sketcher.Constraint("Vertical", 1))
sketch11.addConstraint(Sketcher.Constraint("Horizontal", 2))
sketch11.addConstraint(Sketcher.Constraint("Vertical", 3))
sketch11.addConstraint(Sketcher.Constraint("Horizontal", 4))
sketch11.addConstraint(Sketcher.Constraint("Vertical", 5))
sketch11.addConstraint(Sketcher.Constraint("Horizontal", 6))
sketch11.addConstraint(Sketcher.Constraint("Vertical", 7))
sketch11.addConstraint(Sketcher.Constraint("Horizontal", 8))
sketch11.addConstraint(Sketcher.Constraint("Vertical", 9))
sketch11.addConstraint(Sketcher.Constraint("Horizontal", 10))
sketch11.addConstraint(Sketcher.Constraint("Vertical", 11))
sketch11.addConstraint(Sketcher.Constraint("Vertical", 1, 2, 4, 2))
sketch11.addConstraint(Sketcher.Constraint("Vertical", 3, 2, 6, 2))
sketch11.addConstraint(Sketcher.Constraint("Vertical", 5, 2, 8, 2))
sketch11.addConstraint(Sketcher.Constraint("Vertical", 7, 2, 10, 2))
sketch11.addConstraint(Sketcher.Constraint("Equal", 3, 5))
sketch11.addConstraint(Sketcher.Constraint("Equal", 7, 9))
sketch11.addConstraint(Sketcher.Constraint("DistanceX", 0, 2, 0, 1, Q("3 mm")))
sketch11.addConstraint(Sketcher.Constraint("DistanceY", 1, 2, 1, 1, Q("15 mm")))
sketch11.addConstraint(Sketcher.Constraint("DistanceY", 0, 2, -1, 1, Q("120 mm")))
sketch11.addConstraint(Sketcher.Constraint("DistanceY", 4, 2, -1, 1, Q("65 mm")))
sketch11.addConstraint(Sketcher.Constraint("DistanceY", 8, 2, -1, 1, Q("10 mm")))
sketch11.addConstraint(Sketcher.Constraint("DistanceX", -1, 1, 0, 2, Q("243.5 mm")))
pocket8 = body2.newObject("PartDesign::Pocket", "Pocket007")
pocket8.Profile = sketch11
pocket8.Length = 3

# Sketch on YZ plane
sketch12 = body2.newObject("Sketcher::SketchObject", "Sketch011")
sketch12.AttachmentSupport = (doc.getObject("YZ_Plane001"), [""])
sketch12.MapMode = "FlatFace"
sketch12.AttachmentOffset = App.Placement(Vector(0, 0, 3), App.Rotation())
sketch12.addGeometry(Part.Circle(Vector(240, 13, 0), Vector(0, 0, 1), 2.5), False)
sketch12.addGeometry(Part.Circle(Vector(210, 13, 0), Vector(0, 0, 1), 2.5), False)
sketch12.addConstraint(Sketcher.Constraint("Equal", 0, 1))
sketch12.addConstraint(Sketcher.Constraint("Horizontal", 0, 3, 1, 3))
sketch12.addConstraint(Sketcher.Constraint("Diameter", 0, Q("5 mm")))
sketch12.addConstraint(Sketcher.Constraint("DistanceX", -1, 1, 0, 3, Q("240 mm")))
sketch12.addConstraint(Sketcher.Constraint("DistanceY", -1, 1, 0, 3, Q("13 mm")))
sketch12.addConstraint(Sketcher.Constraint("DistanceX", -1, 1, 1, 3, Q("210 mm")))
pocket9 = body2.newObject("PartDesign::Pocket", "Pocket008")
pocket9.Profile = sketch12
pocket9.Length = 10

# Sketch on YZ plane
sketch13 = body2.newObject("Sketcher::SketchObject", "Sketch012")
sketch13.AttachmentSupport = (doc.getObject("YZ_Plane001"), [""])
sketch13.MapMode = "FlatFace"
sketch13.AttachmentOffset = App.Placement(Vector(0, 0, 3), App.Rotation())
sketch13.addGeometry(Part.LineSegment(Vector(235, 3, 0), Vector(205, 3, 0)), False)
sketch13.addGeometry(Part.LineSegment(Vector(205, 3, 0), Vector(205, 0, 0)), False)
sketch13.addGeometry(Part.LineSegment(Vector(205, 0, 0), Vector(235, 0, 0)), False)
sketch13.addGeometry(Part.LineSegment(Vector(235, 0, 0), Vector(235, 3, 0)), False)
sketch13.addConstraint(Sketcher.Constraint("Coincident", 0, 2, 1, 1))
sketch13.addConstraint(Sketcher.Constraint("Coincident", 1, 2, 2, 1))
sketch13.addConstraint(Sketcher.Constraint("Coincident", 2, 2, 3, 1))
sketch13.addConstraint(Sketcher.Constraint("Coincident", 3, 2, 0, 1))
sketch13.addConstraint(Sketcher.Constraint("Horizontal", 0))
sketch13.addConstraint(Sketcher.Constraint("Vertical", 1))
sketch13.addConstraint(Sketcher.Constraint("Horizontal", 2))
sketch13.addConstraint(Sketcher.Constraint("Vertical", 3))
sketch13.addConstraint(Sketcher.Constraint("PointOnObject", 1, 2, -1))
sketch13.addConstraint(Sketcher.Constraint("DistanceX", 0, 2, 0, 1, Q("30 mm")))
sketch13.addConstraint(Sketcher.Constraint("DistanceY", 1, 2, 1, 1, Q("3 mm")))
sketch13.addConstraint(Sketcher.Constraint("DistanceX", -1, 1, 0, 2, Q("205 mm")))
pocket10 = body2.newObject("PartDesign::Pocket", "Pocket009")
pocket10.Profile = sketch13
pocket10.Length = 10

doc.recompute()
